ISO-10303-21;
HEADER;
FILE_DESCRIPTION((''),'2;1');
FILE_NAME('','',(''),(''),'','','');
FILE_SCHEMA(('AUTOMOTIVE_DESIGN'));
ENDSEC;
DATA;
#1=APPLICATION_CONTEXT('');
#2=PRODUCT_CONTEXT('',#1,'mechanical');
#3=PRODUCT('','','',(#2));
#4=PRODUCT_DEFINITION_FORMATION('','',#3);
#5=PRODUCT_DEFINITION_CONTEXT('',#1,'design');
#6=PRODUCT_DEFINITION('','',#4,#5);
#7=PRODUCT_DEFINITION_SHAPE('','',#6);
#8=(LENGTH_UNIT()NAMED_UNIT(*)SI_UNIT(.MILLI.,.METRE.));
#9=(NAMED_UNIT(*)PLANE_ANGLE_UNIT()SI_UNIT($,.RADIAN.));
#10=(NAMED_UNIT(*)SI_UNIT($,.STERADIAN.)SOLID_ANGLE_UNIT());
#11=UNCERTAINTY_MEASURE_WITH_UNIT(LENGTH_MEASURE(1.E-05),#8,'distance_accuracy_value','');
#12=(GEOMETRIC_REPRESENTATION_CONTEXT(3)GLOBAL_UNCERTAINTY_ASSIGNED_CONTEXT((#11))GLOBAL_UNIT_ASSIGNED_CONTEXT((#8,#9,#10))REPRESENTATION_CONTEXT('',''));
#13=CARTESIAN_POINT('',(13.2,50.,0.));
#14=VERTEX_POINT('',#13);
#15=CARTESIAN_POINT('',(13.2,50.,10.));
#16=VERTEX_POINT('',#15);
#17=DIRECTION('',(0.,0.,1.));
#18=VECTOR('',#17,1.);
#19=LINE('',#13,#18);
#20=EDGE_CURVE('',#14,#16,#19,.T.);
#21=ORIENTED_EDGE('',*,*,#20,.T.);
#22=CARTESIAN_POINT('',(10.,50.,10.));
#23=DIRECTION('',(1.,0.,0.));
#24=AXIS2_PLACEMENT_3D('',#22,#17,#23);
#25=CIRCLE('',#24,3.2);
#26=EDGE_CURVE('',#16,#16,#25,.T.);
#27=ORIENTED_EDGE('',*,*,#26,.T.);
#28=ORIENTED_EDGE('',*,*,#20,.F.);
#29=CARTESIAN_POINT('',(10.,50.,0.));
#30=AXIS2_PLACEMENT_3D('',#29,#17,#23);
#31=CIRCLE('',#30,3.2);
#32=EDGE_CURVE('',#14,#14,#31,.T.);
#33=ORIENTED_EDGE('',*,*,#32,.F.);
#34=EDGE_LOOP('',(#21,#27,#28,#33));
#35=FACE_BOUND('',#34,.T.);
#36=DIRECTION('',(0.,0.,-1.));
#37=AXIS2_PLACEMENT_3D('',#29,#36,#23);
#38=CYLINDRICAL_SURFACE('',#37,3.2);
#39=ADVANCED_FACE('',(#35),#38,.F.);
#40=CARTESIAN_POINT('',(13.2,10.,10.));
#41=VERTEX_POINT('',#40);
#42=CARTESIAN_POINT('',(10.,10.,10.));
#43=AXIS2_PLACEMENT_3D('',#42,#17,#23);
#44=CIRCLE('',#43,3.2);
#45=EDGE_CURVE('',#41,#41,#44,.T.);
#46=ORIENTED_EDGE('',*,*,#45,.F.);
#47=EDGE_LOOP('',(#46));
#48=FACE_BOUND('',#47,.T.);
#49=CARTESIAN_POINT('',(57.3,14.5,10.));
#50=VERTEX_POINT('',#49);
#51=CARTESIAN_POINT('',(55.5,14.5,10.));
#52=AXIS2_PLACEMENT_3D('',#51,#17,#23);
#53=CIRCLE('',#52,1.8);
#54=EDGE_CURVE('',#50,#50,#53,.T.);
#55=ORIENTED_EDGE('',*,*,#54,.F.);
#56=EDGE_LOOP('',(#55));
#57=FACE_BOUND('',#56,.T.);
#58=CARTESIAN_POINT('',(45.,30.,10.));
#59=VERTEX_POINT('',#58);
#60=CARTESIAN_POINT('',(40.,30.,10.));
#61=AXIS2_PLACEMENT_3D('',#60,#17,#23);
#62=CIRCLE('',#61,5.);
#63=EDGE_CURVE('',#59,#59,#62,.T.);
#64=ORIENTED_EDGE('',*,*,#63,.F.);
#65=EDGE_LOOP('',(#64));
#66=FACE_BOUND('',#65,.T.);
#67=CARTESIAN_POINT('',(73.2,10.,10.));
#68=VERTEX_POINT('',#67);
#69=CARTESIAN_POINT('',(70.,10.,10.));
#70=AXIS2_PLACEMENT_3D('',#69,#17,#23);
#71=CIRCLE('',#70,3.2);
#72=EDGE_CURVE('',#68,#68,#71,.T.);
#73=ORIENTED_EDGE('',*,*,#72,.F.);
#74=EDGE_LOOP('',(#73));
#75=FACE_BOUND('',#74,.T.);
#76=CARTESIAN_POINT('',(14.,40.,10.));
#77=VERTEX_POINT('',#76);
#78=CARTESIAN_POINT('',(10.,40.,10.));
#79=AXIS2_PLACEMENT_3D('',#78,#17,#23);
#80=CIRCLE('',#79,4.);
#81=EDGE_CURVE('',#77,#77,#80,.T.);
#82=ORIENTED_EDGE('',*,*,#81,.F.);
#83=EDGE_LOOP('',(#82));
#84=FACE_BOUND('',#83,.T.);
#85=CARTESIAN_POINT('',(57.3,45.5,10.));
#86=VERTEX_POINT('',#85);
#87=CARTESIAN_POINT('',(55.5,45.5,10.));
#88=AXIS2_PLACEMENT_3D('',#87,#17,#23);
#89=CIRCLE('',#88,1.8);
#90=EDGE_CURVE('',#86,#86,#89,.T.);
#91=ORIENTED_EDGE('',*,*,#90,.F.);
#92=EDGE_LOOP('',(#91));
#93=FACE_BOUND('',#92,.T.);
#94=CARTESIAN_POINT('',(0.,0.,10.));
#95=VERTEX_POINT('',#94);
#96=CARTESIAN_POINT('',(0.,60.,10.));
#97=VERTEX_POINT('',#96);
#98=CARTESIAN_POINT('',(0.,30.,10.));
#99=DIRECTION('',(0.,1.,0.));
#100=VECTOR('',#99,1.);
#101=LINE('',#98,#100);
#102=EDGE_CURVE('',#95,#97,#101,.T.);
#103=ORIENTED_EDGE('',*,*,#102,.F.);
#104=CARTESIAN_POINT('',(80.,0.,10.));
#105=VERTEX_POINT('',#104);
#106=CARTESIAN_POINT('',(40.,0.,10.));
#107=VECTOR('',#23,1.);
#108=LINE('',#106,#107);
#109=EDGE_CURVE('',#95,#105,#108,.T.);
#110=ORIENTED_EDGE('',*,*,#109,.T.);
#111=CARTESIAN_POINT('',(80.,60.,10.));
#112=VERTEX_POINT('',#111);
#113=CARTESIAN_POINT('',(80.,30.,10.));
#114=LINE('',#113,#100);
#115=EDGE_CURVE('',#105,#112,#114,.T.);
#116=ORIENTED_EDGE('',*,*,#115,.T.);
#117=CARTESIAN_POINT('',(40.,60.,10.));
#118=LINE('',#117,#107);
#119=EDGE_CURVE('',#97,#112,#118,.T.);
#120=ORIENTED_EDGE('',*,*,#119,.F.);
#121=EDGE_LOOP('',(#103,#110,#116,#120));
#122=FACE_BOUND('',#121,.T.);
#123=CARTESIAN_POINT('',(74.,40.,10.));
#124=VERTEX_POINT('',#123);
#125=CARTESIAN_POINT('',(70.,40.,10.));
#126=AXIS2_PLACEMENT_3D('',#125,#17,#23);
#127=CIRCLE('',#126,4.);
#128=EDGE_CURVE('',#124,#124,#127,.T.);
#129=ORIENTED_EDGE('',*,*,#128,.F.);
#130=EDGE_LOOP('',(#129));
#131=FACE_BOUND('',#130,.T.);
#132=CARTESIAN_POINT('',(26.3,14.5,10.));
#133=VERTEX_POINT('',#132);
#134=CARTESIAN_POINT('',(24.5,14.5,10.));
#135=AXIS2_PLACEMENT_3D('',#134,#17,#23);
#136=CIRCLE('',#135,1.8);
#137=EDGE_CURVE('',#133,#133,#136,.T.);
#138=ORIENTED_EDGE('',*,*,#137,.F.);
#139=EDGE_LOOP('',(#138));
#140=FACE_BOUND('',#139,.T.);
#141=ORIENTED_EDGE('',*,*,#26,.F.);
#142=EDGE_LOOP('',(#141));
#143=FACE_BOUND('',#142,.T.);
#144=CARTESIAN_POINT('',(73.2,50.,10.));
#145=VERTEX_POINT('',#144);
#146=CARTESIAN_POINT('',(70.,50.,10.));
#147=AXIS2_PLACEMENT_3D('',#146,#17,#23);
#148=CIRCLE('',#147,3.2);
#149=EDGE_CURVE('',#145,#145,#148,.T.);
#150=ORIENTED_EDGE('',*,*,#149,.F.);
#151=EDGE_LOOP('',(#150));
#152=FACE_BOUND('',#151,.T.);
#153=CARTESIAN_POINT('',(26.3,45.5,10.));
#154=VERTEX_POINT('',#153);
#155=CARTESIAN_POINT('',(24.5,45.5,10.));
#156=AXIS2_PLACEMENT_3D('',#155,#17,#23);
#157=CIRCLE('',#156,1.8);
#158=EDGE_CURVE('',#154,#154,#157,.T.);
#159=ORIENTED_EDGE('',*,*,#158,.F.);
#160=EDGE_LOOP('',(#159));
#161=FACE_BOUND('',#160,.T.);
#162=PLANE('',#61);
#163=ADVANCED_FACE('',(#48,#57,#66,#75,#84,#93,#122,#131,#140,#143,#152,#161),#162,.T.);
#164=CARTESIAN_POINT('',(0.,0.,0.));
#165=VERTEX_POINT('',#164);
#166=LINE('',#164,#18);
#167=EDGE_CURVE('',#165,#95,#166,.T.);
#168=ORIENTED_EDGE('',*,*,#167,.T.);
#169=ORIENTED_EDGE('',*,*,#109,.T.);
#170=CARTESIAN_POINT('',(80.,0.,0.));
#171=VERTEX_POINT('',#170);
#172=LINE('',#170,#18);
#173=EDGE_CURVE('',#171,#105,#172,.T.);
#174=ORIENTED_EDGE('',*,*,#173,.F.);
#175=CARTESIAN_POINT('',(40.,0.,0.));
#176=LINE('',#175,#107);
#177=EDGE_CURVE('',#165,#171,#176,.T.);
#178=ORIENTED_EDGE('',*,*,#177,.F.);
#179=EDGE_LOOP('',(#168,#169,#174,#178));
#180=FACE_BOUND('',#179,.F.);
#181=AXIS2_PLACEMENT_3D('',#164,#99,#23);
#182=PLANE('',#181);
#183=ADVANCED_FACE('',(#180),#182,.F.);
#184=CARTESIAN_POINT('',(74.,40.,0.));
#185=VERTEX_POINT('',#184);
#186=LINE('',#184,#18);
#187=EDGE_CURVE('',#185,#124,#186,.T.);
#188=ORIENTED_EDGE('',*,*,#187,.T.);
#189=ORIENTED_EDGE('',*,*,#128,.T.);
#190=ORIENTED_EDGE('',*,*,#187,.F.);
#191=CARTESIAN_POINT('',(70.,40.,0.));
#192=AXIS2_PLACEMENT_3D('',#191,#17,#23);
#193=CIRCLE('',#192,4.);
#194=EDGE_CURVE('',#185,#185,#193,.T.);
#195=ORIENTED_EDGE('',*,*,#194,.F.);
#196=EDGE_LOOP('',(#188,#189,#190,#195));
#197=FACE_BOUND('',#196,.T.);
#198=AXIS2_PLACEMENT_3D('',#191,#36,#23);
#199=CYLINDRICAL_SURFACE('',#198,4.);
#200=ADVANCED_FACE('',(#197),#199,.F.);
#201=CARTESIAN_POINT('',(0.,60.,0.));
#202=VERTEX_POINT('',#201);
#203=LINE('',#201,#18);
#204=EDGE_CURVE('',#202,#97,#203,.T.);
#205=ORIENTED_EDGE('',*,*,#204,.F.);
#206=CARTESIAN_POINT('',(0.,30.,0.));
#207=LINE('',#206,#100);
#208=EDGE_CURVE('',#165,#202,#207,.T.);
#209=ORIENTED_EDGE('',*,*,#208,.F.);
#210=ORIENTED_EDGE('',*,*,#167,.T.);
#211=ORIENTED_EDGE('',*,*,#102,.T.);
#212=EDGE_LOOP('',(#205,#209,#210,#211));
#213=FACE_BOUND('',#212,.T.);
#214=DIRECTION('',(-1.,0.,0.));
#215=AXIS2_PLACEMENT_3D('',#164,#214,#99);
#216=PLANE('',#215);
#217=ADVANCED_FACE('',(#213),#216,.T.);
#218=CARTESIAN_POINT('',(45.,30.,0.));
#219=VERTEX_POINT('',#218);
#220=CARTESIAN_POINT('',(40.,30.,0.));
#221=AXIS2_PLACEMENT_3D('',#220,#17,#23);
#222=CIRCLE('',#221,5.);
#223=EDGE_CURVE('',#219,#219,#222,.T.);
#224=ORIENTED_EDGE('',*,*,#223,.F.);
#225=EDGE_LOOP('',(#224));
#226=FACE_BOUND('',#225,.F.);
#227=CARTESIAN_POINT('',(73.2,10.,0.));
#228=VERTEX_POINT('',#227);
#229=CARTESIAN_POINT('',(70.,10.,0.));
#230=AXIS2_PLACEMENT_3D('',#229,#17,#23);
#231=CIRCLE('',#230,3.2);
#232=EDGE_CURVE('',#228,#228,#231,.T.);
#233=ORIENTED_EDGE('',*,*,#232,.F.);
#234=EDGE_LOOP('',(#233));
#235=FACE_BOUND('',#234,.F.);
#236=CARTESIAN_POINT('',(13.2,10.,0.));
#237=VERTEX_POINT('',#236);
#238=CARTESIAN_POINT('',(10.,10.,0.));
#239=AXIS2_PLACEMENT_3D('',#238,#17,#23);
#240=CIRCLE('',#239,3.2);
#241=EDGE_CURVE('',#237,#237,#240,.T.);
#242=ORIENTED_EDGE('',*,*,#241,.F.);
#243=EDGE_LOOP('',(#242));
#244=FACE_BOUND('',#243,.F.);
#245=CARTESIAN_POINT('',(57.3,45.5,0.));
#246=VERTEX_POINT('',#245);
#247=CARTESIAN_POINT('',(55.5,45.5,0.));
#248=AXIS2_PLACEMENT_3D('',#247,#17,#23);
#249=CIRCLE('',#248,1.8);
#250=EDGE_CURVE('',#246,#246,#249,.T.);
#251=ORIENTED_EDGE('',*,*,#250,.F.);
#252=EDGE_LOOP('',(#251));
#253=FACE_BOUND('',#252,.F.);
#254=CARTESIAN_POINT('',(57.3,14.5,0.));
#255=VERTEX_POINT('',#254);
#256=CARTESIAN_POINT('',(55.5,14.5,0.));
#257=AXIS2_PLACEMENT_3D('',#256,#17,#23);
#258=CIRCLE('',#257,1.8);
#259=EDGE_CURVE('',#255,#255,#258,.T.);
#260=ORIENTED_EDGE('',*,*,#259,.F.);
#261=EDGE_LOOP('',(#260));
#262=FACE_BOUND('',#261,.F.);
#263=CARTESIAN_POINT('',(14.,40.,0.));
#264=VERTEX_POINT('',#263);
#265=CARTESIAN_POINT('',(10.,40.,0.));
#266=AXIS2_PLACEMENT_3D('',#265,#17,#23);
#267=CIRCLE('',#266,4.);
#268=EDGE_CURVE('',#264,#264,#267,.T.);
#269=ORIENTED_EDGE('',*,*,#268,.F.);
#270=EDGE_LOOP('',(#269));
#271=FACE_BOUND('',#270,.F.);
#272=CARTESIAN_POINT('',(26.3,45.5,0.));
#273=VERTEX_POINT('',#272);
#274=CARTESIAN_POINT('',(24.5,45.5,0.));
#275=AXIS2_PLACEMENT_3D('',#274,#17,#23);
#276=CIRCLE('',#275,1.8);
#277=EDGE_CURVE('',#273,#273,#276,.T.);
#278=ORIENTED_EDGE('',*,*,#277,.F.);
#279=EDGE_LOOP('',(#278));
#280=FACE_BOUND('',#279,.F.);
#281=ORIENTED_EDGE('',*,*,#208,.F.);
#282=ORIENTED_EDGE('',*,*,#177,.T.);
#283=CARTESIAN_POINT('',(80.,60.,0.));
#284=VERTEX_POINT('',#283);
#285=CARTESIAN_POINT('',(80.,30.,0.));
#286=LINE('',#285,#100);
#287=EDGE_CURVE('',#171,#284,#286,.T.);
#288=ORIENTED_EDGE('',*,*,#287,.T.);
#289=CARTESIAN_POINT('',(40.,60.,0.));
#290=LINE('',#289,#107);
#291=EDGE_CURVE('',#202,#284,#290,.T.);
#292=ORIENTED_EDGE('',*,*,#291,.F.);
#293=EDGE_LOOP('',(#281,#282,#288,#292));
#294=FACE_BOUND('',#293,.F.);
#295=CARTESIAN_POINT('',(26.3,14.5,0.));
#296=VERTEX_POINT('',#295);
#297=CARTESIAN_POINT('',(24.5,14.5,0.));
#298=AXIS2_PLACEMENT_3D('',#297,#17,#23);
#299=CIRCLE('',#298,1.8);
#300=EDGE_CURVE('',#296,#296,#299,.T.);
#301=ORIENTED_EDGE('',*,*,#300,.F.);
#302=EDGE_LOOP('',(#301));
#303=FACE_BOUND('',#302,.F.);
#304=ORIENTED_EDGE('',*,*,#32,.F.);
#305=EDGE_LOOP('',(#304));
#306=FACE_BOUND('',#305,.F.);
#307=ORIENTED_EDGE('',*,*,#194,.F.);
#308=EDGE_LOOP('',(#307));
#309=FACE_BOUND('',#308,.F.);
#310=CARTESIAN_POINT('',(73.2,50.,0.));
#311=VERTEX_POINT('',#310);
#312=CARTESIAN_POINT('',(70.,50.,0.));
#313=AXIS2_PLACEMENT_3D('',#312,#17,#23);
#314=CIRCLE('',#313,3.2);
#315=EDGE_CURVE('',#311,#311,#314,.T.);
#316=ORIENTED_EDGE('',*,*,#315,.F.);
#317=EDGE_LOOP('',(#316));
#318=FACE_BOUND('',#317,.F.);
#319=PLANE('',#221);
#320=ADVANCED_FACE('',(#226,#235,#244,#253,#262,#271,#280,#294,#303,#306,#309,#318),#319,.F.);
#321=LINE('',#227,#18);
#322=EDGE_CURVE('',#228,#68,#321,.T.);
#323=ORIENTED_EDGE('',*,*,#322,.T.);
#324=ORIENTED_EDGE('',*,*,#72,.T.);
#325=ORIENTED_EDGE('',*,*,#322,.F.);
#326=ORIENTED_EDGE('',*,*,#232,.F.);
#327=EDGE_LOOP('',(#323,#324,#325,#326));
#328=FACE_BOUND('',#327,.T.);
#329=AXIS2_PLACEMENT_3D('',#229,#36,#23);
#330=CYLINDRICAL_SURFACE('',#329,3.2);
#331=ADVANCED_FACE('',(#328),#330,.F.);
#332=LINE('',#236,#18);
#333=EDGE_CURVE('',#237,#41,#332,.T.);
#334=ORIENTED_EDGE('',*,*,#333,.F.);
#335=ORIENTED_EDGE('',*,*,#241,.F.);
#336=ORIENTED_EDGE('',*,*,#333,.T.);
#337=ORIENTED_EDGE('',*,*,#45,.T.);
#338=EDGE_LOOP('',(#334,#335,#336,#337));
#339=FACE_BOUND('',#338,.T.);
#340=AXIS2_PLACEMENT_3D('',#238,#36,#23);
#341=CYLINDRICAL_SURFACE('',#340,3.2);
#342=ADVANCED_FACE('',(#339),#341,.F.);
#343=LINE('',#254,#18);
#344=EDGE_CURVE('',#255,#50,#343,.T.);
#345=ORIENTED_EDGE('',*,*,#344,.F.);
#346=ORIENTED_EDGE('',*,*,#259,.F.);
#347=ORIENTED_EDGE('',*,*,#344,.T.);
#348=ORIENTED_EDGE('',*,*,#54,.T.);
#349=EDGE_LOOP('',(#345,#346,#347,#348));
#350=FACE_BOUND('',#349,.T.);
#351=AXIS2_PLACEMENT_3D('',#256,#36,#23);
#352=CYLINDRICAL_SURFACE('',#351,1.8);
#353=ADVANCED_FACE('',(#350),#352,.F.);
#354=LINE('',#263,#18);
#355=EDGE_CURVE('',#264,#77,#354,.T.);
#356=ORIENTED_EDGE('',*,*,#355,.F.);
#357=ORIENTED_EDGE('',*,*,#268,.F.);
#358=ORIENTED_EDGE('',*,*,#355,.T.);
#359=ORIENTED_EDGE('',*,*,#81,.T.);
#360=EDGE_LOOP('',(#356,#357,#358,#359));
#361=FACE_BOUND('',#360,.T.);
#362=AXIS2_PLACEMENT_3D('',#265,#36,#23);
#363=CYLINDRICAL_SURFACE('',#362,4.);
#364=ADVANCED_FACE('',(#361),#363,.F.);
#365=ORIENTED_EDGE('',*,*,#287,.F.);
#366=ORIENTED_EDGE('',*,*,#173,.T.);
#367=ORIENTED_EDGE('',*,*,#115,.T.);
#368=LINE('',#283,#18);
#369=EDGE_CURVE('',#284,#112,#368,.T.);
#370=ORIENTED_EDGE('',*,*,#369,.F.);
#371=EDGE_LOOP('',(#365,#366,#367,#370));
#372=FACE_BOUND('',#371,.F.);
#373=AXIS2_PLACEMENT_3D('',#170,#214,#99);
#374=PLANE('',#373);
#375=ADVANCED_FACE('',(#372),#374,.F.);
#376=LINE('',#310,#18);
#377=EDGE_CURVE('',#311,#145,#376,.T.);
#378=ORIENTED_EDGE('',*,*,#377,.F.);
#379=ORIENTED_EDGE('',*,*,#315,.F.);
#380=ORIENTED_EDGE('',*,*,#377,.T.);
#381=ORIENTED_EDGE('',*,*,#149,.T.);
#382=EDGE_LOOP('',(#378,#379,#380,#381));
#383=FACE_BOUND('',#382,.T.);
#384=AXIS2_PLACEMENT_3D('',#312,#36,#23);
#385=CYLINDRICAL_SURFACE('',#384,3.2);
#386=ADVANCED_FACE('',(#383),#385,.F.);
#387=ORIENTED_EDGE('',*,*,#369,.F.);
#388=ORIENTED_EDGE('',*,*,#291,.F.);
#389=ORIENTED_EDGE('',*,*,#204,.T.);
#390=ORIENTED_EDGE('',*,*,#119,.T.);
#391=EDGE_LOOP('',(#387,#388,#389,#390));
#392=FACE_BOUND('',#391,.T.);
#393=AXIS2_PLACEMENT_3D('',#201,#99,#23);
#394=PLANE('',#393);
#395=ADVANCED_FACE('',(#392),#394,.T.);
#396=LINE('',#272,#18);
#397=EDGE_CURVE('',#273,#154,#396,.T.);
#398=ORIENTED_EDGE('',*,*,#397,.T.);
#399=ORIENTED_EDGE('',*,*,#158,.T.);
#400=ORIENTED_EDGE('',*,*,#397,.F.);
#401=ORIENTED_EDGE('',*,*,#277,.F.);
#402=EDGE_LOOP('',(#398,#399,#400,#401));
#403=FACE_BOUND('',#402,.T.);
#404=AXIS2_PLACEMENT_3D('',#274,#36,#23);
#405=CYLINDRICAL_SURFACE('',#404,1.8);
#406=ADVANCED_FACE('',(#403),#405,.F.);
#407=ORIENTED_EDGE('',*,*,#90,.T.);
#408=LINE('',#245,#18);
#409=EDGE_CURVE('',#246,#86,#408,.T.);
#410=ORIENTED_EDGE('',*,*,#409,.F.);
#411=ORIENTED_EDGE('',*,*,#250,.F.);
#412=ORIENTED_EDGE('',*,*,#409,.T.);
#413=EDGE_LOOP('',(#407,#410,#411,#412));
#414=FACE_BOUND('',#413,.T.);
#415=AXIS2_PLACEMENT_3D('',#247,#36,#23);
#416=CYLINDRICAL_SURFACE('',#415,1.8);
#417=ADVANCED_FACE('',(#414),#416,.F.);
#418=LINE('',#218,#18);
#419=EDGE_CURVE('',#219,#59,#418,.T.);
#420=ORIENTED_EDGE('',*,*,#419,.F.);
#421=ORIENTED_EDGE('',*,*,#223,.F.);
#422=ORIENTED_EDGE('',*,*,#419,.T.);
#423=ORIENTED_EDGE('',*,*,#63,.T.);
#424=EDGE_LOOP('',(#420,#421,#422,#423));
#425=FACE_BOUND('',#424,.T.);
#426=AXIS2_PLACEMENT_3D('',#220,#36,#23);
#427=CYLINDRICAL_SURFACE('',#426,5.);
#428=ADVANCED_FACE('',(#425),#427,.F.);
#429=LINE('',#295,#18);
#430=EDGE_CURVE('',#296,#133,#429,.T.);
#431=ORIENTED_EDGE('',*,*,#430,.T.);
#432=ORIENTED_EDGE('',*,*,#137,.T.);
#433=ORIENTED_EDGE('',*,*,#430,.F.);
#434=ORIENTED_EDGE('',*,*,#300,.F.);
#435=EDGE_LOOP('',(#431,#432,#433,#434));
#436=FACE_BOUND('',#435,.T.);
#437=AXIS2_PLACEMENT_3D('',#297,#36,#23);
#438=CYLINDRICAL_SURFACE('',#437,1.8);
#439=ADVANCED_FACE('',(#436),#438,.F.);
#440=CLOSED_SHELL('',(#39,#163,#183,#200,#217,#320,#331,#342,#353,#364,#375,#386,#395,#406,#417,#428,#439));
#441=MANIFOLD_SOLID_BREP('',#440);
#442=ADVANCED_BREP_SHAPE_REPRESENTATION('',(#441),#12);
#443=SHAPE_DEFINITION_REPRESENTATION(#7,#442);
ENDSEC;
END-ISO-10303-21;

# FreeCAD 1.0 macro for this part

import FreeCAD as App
import Part
import Sketcher
Q = App.Units.Quantity


def add_polygon(sketch, points):
    """Adds a closed chain of lines whose ends are joined by coincident constraints."""
    first, n = sketch.GeometryCount, len(points)
    for a, b in zip(points, points[1:] + points[:1]):
        sketch.addGeometry(Part.LineSegment(App.Vector(*a, 0), App.Vector(*b, 0)), False)
    for i in range(n):
        sketch.addConstraint(Sketcher.Constraint("Coincident", first + i, 2, first + (i + 1) % n, 1))

doc = App.newDocument("Part")
body = doc.addObject("PartDesign::Body", "Body")

# Sketch on XY plane
sketch1 = body.newObject("Sketcher::SketchObject", "Sketch")
sketch1.AttachmentSupport = (doc.getObject("XY_Plane"), [""])
sketch1.MapMode = "FlatFace"
add_polygon(sketch1, [(0, 60), (0, 0), (80, 0), (80, 60)])  # lines 0-3
sketch1.addGeometry(Part.Circle(App.Vector(10, 10, 0), App.Vector(0, 0, 1), 3.2), False)  # 4
sketch1.addGeometry(Part.Circle(App.Vector(24.5, 14.5, 0), App.Vector(0, 0, 1), 1.8), False)  # 5
sketch1.addGeometry(Part.Circle(App.Vector(55.5, 14.5, 0), App.Vector(0, 0, 1), 1.8), False)  # 6
sketch1.addGeometry(Part.Circle(App.Vector(70, 10, 0), App.Vector(0, 0, 1), 3.2), False)  # 7
sketch1.addGeometry(Part.Circle(App.Vector(10, 40, 0), App.Vector(0, 0, 1), 4), False)  # 8
sketch1.addGeometry(Part.Circle(App.Vector(10, 50, 0), App.Vector(0, 0, 1), 3.2), False)  # 9
sketch1.addGeometry(Part.Circle(App.Vector(24.5, 45.5, 0), App.Vector(0, 0, 1), 1.8), False)  # 10
sketch1.addGeometry(Part.Circle(App.Vector(40, 30, 0), App.Vector(0, 0, 1), 5), False)  # 11
sketch1.addGeometry(Part.Circle(App.Vector(70, 40, 0), App.Vector(0, 0, 1), 4), False)  # 12
sketch1.addGeometry(Part.Circle(App.Vector(55.5, 45.5, 0), App.Vector(0, 0, 1), 1.8), False)  # 13
sketch1.addGeometry(Part.Circle(App.Vector(70, 50, 0), App.Vector(0, 0, 1), 3.2), False)  # 14
sketch1.addConstraint([
    Sketcher.Constraint("Vertical", 0),
    Sketcher.Constraint("Horizontal", 1),
    Sketcher.Constraint("Vertical", 2),
    Sketcher.Constraint("Horizontal", 3),
    Sketcher.Constraint("Coincident", 0, 2, -1, 1),
    Sketcher.Constraint("Equal", 5, 6),
    Sketcher.Constraint("Equal", 4, 7),
    Sketcher.Constraint("Equal", 7, 9),
    Sketcher.Constraint("Equal", 6, 10),
    Sketcher.Constraint("Equal", 8, 12),
    Sketcher.Constraint("Equal", 10, 13),
    Sketcher.Constraint("Equal", 9, 14),
    Sketcher.Constraint("Horizontal", 5, 3, 6, 3),
    Sketcher.Constraint("Horizontal", 4, 3, 7, 3),
    Sketcher.Constraint("Horizontal", 8, 3, 12, 3),
    Sketcher.Constraint("Horizontal", 10, 3, 13, 3),
    Sketcher.Constraint("Horizontal", 9, 3, 14, 3),
    Sketcher.Constraint("Vertical", 4, 3, 8, 3),
    Sketcher.Constraint("Vertical", 8, 3, 9, 3),
    Sketcher.Constraint("Vertical", 5, 3, 10, 3),
    Sketcher.Constraint("Vertical", 7, 3, 12, 3),
    Sketcher.Constraint("Vertical", 6, 3, 13, 3),
    Sketcher.Constraint("Vertical", 12, 3, 14, 3),
    Sketcher.Constraint("Diameter", 8, Q("8 mm")),
    Sketcher.Constraint("Diameter", 11, Q("10 mm")),
    Sketcher.Constraint("Diameter", 4, Q("6.4 mm")),
    Sketcher.Constraint("Diameter", 5, Q("3.6 mm")),
    Sketcher.Constraint("DistanceX", 1, 1, 1, 2, Q("80 mm")),
    Sketcher.Constraint("DistanceY", 0, 2, 0, 1, Q("60 mm")),
    Sketcher.Constraint("DistanceX", -1, 1, 4, 3, Q("10 mm")),
    Sketcher.Constraint("DistanceY", -1, 1, 4, 3, Q("10 mm")),
    Sketcher.Constraint("DistanceX", -1, 1, 7, 3, Q("70 mm")),
    Sketcher.Constraint("DistanceY", -1, 1, 8, 3, Q("40 mm")),
    Sketcher.Constraint("DistanceY", -1, 1, 9, 3, Q("50 mm")),
    Sketcher.Constraint("DistanceX", -1, 1, 11, 3, Q("40 mm")),
    Sketcher.Constraint("DistanceY", -1, 1, 11, 3, Q("30 mm")),
    Sketcher.Constraint("DistanceX", 5, 3, 6, 3, Q("31 mm")),
    Sketcher.Constraint("DistanceY", 5, 3, 10, 3, Q("31 mm")),
    Sketcher.Constraint("DistanceX", -1, 1, 5, 3, Q("24.5 mm")),
    Sketcher.Constraint("DistanceY", -1, 1, 5, 3, Q("14.5 mm")),
])
pad1 = body.newObject("PartDesign::Pad", "Pad")
pad1.Profile = sketch1
pad1.Length = 10

doc.recompute()
